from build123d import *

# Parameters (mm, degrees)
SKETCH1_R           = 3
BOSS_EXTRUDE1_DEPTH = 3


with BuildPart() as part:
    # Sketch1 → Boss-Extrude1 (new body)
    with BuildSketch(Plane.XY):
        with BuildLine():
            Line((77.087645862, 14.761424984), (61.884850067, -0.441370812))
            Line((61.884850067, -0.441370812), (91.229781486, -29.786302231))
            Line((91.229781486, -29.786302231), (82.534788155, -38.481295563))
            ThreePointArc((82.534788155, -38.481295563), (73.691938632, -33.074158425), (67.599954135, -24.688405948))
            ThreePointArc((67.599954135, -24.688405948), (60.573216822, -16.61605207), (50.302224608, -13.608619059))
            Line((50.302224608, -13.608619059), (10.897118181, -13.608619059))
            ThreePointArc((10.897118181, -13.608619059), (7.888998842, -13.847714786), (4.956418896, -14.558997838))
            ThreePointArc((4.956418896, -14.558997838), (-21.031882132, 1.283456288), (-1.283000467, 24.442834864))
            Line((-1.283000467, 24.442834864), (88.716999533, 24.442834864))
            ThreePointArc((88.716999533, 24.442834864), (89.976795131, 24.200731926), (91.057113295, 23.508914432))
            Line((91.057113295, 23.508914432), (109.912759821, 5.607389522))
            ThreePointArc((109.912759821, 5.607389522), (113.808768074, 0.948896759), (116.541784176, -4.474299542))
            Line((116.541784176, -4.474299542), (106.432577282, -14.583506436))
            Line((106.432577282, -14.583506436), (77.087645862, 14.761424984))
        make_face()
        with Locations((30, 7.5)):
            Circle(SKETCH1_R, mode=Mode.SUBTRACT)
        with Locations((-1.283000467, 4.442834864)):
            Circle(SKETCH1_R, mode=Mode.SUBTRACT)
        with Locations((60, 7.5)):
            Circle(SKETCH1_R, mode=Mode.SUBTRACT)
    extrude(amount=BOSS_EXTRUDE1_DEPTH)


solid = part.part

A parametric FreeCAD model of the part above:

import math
import FreeCAD as App
import Part
import Sketcher

V = App.Vector
Q = App.Units.Quantity

doc = App.newDocument("Part")
params = doc.addObject("Spreadsheet::Sheet", "Params")
for row, (alias, value) in enumerate([
    ("sketch1_diameter", "6 mm"),
    ("sketch1_radius", "20 mm"),
    ("sketch1_width", "90 mm"),
    ("sketch1_length", "26 mm"),
    ("sketch1_length2", "21.5 mm"),
    ("pad1_length", "3 mm"),
], start=1):
    params.set(f"A{row}", alias)
    params.set(f"B{row}", "=" + value)
    params.setAlias(f"B{row}", alias)

body = doc.addObject("PartDesign::Body", "Body")

# Sketch on XY plane
sketch1 = body.newObject("Sketcher::SketchObject", "Sketch")
sketch1.AttachmentSupport = (doc.getObject("XY_Plane"), [""])
sketch1.MapMode = "FlatFace"
sketch1.addGeometry(Part.LineSegment(V(61.9, -0.4, 0), V(77.1, 14.8, 0)), False)
sketch1.addGeometry(Part.LineSegment(V(77.1, 14.8, 0), V(106.4, -14.6, 0)), False)
sketch1.addGeometry(Part.LineSegment(V(106.4, -14.6, 0), V(116.5, -4.5, 0)), False)
sketch1.addGeometry(Part.ArcOfCircle(Part.Circle(V(91.7, -13.6, 0), V(0, 0, 1), 26.5), math.radians(20), math.radians(46)), False)
sketch1.addGeometry(Part.LineSegment(V(109.9, 5.6, 0), V(91.1, 23.5, 0)), False)
sketch1.addGeometry(Part.ArcOfCircle(Part.Circle(V(88.7, 21, 0), V(0, 0, 1), 3.4), math.radians(46), math.radians(90)), False)
sketch1.addGeometry(Part.LineSegment(V(88.7, 24.4, 0), V(-1.3, 24.4, 0)), False)
sketch1.addGeometry(Part.ArcOfCircle(Part.Circle(V(-1.3, 4.4, 0), V(0, 0, 1), 20), math.radians(90), math.radians(288)), False)
sketch1.addGeometry(Part.ArcOfCircle(Part.Circle(V(10.9, -32.7, 0), V(0, 0, 1), 19), math.radians(90), math.radians(108.18)), False)
sketch1.addGeometry(Part.LineSegment(V(10.9, -13.6, 0), V(50.3, -13.6, 0)), False)
sketch1.addGeometry(Part.ArcOfCircle(Part.Circle(V(50.3, -32.7, 0), V(0, 0, 1), 19), math.radians(25), math.radians(90)), False)
sketch1.addGeometry(Part.ArcOfCircle(Part.Circle(V(91.7, -13.6, 0), V(0, 0, 1), 26.5), math.radians(-155), math.radians(-110)), False)
sketch1.addGeometry(Part.LineSegment(V(82.5, -38.5, 0), V(91.2, -29.8, 0)), False)
sketch1.addGeometry(Part.LineSegment(V(91.2, -29.8, 0), V(61.9, -0.4, 0)), False)
sketch1.addGeometry(Part.Circle(V(-1.3, 4.4, 0), V(0, 0, 1), 3), False)
sketch1.addGeometry(Part.Circle(V(60, 7.5, 0), V(0, 0, 1), 3), False)
sketch1.addGeometry(Part.Circle(V(30, 7.5, 0), V(0, 0, 1), 3), False)
sketch1.addConstraint(Sketcher.Constraint("Coincident", 0, 2, 1, 1))
sketch1.addConstraint(Sketcher.Constraint("Coincident", 1, 2, 2, 1))
sketch1.addConstraint(Sketcher.Constraint("Coincident", 2, 2, 3, 1))
sketch1.addConstraint(Sketcher.Constraint("Tangent", 3, 2, 4, 1))
sketch1.addConstraint(Sketcher.Constraint("Tangent", 4, 2, 5, 1))
sketch1.addConstraint(Sketcher.Constraint("Tangent", 5, 2, 6, 1))
sketch1.addConstraint(Sketcher.Constraint("Tangent", 6, 2, 7, 1))
sketch1.addConstraint(Sketcher.Constraint("Tangent", 7, 2, 8, 2))
sketch1.addConstraint(Sketcher.Constraint("Tangent", 8, 1, 9, 1))
sketch1.addConstraint(Sketcher.Constraint("Tangent", 9, 2, 10, 2))
sketch1.addConstraint(Sketcher.Constraint("Tangent", 10, 1, 11, 1))
sketch1.addConstraint(Sketcher.Constraint("Coincident", 11, 2, 12, 1))
sketch1.addConstraint(Sketcher.Constraint("Coincident", 12, 2, 13, 1))
sketch1.addConstraint(Sketcher.Constraint("Coincident", 13, 2, 0, 1))
sketch1.addConstraint(Sketcher.Constraint("Horizontal", 6))
sketch1.addConstraint(Sketcher.Constraint("Horizontal", 9))
sketch1.addConstraint(Sketcher.Constraint("Coincident", 11, 3, 3, 3))
sketch1.addConstraint(Sketcher.Constraint("Coincident", 14, 3, 7, 3))
sketch1.addConstraint(Sketcher.Constraint("Equal", 8, 10))
sketch1.addConstraint(Sketcher.Constraint("Equal", 3, 11))
sketch1.addConstraint(Sketcher.Constraint("Equal", 14, 15))
sketch1.addConstraint(Sketcher.Constraint("Equal", 15, 16))
sketch1.addConstraint(Sketcher.Constraint("Perpendicular", 0, 1))
sketch1.addConstraint(Sketcher.Constraint("Perpendicular", 1, 2))
sketch1.addConstraint(Sketcher.Constraint("Parallel", 2, 12))
sketch1.addConstraint(Sketcher.Constraint("Perpendicular", 12, 13))
sketch1.addConstraint(Sketcher.Constraint("Horizontal", 15, 3, 16, 3))
sketch1.addConstraint(Sketcher.Constraint("Horizontal", 11, 3, 8, 1))
sketch1.addConstraint(Sketcher.Constraint("Equal", 1, 13))
sketch1.addConstraint(Sketcher.Constraint("Diameter", 14, 6.0))
sketch1.addConstraint(Sketcher.Constraint("Radius", 7, 20.0))
sketch1.addConstraint(Sketcher.Constraint("DistanceX", 6, 2, 6, 1, 90.0))
sketch1.addConstraint(Sketcher.Constraint("Angle", 0, Q("45 deg")))
sketch1.addConstraint(Sketcher.Constraint("Distance", 4, 26.0))
sketch1.addConstraint(Sketcher.Constraint("DistanceX", -1, 1, 15, 3, 60.0))
sketch1.addConstraint(Sketcher.Constraint("DistanceX", -1, 1, 16, 3, 30.0))
sketch1.addConstraint(Sketcher.Constraint("Distance", 0, 21.5))
sketch1.addConstraint(Sketcher.Constraint("Distance", 1, 41.5))
sketch1.addConstraint(Sketcher.Constraint("DistanceY", -1, 1, 15, 3, 7.5))
sketch1.addConstraint(Sketcher.Constraint("Radius", 5, 3.398758))
sketch1.addConstraint(Sketcher.Constraint("DistanceX", -1, 1, 5, 3, 88.717))
sketch1.addConstraint(Sketcher.Constraint("Radius", 3, 26.496902))
sketch1.addConstraint(Sketcher.Constraint("Radius", 8, 19.042475))
sketch1.addConstraint(Sketcher.Constraint("DistanceY", 2, 2, -1, 1, 4.4743))
sketch1.addConstraint(Sketcher.Constraint("DistanceX", 7, 2, 8, 3, 5.940699))
sketch1.addConstraint(Sketcher.Constraint("DistanceY", 11, 2, 10, 3, 5.830202))
sketch1.addConstraint(Sketcher.Constraint("DistanceX", -1, 1, 12, 2, 91.229781))
sketch1.setExpression("Constraints[29]", "Params.sketch1_diameter")
sketch1.setExpression("Constraints[30]", "Params.sketch1_radius")
sketch1.setExpression("Constraints[31]", "Params.sketch1_width")
sketch1.setExpression("Constraints[33]", "Params.sketch1_length")
sketch1.setExpression("Constraints[36]", "Params.sketch1_length2")
pad1 = body.newObject("PartDesign::Pad", "Pad")
pad1.Profile = sketch1
pad1.setExpression("Length", "Params.pad1_length")

doc.recompute()
